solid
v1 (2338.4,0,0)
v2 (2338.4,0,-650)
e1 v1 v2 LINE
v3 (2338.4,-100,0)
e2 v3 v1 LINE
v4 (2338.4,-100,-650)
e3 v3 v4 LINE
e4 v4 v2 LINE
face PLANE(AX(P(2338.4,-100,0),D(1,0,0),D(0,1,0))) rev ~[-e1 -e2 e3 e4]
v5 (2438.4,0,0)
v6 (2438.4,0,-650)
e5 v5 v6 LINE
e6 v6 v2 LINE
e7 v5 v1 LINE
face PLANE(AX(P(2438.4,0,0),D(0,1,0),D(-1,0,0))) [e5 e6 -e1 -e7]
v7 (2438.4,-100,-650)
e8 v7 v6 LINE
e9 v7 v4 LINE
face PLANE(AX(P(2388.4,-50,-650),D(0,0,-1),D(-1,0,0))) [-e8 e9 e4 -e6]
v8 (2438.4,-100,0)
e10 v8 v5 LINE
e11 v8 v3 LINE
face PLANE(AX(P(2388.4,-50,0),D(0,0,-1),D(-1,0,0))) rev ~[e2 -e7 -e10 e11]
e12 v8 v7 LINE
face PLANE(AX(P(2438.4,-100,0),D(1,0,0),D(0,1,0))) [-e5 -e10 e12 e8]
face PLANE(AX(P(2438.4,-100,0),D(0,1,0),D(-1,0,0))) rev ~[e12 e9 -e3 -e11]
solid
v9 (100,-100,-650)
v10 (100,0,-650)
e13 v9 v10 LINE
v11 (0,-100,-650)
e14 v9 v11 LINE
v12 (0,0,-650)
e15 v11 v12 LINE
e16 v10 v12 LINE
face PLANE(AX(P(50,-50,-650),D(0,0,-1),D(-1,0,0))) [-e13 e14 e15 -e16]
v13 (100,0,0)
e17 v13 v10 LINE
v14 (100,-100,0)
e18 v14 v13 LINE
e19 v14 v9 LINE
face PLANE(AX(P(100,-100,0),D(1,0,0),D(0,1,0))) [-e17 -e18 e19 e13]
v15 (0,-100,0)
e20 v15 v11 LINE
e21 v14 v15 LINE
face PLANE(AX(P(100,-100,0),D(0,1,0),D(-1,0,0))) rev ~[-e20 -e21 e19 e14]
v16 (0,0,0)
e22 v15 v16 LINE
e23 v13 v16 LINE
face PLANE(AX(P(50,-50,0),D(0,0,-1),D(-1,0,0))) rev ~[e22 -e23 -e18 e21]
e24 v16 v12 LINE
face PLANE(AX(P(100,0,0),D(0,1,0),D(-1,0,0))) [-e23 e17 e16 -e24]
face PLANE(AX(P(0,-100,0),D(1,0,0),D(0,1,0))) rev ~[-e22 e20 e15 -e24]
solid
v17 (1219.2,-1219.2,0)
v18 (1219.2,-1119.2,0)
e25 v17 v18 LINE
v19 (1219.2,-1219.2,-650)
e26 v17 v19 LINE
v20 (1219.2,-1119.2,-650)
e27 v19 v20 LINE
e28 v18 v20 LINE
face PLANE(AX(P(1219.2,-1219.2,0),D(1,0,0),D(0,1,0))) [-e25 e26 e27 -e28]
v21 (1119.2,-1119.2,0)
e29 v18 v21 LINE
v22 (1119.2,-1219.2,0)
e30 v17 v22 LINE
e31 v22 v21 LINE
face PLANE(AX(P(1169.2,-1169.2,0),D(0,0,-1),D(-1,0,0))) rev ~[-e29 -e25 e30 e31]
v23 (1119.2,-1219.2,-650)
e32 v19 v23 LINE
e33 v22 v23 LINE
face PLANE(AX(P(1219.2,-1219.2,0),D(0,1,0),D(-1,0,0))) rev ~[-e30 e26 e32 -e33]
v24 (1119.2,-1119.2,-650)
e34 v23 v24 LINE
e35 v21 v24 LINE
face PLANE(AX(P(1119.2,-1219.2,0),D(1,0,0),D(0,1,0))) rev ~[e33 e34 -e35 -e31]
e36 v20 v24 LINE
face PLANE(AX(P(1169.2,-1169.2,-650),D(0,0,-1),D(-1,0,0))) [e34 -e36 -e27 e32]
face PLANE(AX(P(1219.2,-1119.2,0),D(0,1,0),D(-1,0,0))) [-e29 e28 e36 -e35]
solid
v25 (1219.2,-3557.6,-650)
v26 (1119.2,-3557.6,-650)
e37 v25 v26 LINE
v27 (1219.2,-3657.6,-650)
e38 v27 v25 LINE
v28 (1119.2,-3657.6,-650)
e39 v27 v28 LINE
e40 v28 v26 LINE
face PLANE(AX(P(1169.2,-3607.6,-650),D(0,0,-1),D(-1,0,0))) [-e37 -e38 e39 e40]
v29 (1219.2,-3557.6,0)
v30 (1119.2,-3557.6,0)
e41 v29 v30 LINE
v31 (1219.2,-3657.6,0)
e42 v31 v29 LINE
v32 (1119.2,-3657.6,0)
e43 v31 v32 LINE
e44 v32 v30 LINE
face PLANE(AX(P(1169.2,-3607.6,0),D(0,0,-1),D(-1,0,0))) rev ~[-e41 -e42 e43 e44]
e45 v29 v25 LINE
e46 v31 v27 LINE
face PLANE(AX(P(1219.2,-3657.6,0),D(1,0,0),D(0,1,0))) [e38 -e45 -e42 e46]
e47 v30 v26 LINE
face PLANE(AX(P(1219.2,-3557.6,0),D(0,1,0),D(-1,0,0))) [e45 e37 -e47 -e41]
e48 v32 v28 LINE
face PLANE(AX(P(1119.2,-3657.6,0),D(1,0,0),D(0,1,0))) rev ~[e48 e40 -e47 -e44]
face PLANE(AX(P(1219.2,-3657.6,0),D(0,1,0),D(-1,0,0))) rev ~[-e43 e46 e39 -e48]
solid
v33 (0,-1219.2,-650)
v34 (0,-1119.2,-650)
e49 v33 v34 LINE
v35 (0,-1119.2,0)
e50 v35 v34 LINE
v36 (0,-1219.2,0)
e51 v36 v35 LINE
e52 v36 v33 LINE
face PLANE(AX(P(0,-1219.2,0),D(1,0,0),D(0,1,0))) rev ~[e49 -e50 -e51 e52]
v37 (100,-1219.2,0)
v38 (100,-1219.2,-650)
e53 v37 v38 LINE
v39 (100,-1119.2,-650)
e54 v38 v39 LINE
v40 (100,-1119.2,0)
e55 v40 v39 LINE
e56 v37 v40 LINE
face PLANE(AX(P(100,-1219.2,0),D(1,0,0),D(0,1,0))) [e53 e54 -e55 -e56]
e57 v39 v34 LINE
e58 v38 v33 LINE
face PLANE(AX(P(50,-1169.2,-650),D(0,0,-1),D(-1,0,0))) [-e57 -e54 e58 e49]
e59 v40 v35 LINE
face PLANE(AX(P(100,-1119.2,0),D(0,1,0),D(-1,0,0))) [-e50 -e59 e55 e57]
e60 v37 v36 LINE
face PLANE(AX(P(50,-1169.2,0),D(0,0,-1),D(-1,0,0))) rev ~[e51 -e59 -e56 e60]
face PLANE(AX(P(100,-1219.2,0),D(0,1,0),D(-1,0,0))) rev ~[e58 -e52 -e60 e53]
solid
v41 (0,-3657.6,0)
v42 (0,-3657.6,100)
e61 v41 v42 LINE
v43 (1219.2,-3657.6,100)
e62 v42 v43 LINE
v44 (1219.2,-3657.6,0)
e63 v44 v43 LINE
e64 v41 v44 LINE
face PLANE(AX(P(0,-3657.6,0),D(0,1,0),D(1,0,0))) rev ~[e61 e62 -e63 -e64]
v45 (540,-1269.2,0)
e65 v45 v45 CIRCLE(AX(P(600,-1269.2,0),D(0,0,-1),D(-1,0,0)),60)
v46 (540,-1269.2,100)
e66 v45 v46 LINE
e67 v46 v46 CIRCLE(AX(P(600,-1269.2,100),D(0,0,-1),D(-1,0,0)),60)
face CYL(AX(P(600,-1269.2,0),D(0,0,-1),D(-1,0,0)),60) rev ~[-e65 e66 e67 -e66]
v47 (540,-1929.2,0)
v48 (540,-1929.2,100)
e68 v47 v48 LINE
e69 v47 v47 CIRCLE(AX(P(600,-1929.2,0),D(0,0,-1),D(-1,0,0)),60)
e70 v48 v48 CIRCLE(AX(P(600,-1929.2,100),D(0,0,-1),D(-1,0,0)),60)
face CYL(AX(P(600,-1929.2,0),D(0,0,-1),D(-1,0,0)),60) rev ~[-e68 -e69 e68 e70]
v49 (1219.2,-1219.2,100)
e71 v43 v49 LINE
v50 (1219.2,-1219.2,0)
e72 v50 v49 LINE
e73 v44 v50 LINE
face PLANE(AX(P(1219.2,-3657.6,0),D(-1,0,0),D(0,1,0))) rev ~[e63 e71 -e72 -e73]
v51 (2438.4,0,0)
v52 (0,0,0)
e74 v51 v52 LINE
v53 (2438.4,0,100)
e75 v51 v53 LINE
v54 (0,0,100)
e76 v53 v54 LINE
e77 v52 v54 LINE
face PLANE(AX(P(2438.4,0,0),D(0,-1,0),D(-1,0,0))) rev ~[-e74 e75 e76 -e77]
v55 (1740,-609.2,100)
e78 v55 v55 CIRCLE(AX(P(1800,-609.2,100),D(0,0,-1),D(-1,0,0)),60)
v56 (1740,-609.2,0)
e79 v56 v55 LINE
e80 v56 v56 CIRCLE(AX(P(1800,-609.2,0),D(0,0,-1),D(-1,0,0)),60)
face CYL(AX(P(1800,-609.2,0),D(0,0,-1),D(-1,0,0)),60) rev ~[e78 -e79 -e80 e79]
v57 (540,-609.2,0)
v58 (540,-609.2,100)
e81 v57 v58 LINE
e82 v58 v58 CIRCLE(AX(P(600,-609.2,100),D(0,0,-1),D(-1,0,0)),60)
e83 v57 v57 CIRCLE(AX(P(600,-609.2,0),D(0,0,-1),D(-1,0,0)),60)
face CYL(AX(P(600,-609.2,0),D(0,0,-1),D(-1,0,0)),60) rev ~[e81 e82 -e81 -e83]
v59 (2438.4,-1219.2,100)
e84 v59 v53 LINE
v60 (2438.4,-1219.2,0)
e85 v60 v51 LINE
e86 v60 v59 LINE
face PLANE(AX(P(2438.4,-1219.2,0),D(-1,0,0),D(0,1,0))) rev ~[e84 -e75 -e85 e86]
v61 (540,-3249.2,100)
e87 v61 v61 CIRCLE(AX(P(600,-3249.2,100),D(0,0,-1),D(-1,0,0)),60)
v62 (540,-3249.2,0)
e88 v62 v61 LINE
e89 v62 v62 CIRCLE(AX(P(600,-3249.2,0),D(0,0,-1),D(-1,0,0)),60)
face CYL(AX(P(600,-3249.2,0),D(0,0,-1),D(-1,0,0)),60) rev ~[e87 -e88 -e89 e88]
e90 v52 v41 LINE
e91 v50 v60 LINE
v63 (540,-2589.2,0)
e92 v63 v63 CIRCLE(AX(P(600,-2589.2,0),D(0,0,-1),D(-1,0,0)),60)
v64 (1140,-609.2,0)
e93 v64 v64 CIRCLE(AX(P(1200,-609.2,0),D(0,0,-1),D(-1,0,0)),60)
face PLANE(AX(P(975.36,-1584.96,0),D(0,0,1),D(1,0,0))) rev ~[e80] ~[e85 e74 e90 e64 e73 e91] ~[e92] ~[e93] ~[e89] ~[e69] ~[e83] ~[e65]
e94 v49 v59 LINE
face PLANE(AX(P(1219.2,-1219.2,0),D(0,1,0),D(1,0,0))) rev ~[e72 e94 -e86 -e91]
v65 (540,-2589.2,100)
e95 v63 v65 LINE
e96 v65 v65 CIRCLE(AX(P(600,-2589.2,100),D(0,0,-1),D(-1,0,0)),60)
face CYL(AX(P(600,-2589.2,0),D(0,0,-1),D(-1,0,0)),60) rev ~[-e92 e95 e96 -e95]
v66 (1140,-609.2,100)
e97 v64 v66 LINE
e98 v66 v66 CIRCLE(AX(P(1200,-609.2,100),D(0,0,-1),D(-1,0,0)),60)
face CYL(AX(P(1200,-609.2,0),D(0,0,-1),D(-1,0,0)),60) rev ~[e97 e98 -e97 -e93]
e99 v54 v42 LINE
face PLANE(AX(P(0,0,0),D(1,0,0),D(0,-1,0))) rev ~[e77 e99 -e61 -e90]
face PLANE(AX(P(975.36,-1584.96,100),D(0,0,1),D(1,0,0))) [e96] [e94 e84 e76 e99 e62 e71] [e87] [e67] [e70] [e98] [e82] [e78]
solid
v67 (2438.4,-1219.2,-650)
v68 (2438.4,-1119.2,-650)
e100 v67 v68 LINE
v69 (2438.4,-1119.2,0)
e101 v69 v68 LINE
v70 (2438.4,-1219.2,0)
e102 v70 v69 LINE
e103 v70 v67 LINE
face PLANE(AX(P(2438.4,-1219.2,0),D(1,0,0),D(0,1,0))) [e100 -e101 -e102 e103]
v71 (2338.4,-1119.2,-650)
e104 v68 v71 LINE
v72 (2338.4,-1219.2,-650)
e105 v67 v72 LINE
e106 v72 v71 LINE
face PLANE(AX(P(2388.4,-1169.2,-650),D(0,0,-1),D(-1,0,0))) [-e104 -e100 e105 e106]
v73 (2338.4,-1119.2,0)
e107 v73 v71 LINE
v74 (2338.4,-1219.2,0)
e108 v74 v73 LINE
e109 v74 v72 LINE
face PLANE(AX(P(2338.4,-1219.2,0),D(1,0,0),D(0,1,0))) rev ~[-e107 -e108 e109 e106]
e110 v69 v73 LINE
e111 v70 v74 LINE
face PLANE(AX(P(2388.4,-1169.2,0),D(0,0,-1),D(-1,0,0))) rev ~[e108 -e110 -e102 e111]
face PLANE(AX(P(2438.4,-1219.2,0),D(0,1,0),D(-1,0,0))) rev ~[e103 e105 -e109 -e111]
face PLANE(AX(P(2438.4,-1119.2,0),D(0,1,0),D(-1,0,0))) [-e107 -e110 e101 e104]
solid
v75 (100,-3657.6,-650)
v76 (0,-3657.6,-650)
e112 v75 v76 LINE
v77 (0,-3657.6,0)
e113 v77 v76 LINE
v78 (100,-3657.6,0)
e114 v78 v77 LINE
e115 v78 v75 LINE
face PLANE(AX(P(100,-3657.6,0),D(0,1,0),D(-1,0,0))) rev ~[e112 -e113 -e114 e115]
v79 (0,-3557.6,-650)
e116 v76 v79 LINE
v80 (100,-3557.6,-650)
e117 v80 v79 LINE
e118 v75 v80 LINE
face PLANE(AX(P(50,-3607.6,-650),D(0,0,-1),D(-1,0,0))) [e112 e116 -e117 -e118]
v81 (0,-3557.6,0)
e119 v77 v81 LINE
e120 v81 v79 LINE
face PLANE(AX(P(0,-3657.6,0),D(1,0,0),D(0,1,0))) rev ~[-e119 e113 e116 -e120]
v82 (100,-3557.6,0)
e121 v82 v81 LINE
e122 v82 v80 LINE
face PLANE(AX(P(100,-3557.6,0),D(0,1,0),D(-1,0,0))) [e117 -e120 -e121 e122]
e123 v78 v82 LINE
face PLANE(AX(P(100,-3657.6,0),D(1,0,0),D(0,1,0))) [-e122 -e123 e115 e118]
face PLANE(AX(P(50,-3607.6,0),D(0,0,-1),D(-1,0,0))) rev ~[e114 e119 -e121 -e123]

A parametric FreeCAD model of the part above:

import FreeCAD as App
import Part
import Sketcher
Q = App.Units.Quantity


def add_polygon(sketch, points):
    """Adds a closed chain of lines whose ends are joined by coincident constraints."""
    first, n = sketch.GeometryCount, len(points)
    for a, b in zip(points, points[1:] + points[:1]):
        sketch.addGeometry(Part.LineSegment(App.Vector(*a, 0), App.Vector(*b, 0)), False)
    for i in range(n):
        sketch.addConstraint(Sketcher.Constraint("Coincident", first + i, 2, first + (i + 1) % n, 1))

doc = App.newDocument("Part")
body = doc.addObject("PartDesign::Body", "Body")

sketch1 = doc.addObject("Sketcher::SketchObject", "Sketch")
body.addObject(sketch1)
sketch1.AttachmentSupport = (doc.XY_Plane, [""])
sketch1.MapMode = "FlatFace"
add_polygon(sketch1, [(2438, -1219), (2438, 0), (0, 0), (0, -3658), (1219, -3658), (1219, -1219)])
sketch1.addConstraint(Sketcher.Constraint("Vertical", 0))
sketch1.addConstraint(Sketcher.Constraint("Horizontal", 1))
sketch1.addConstraint(Sketcher.Constraint("Vertical", 2))
sketch1.addConstraint(Sketcher.Constraint("Horizontal", 3))
sketch1.addConstraint(Sketcher.Constraint("Vertical", 4))
sketch1.addConstraint(Sketcher.Constraint("Horizontal", 5))
sketch1.addConstraint(Sketcher.Constraint("Coincident", 1, 2, -1, 1))
sketch1.addConstraint(Sketcher.Constraint("Equal", 3, 5))
sketch1.addConstraint(Sketcher.Constraint("Equal", 5, 0))
sketch1.addConstraint(Sketcher.Constraint("Equal", 1, 4))
sketch1.addConstraint(Sketcher.Constraint("DistanceX", 1, 2, 1, 1, Q("2438.4 mm")))
pad1 = doc.addObject("PartDesign::Pad", "Pad")
body.addObject(pad1)
pad1.Profile = sketch1
pad1.Length = 100

sketch2 = doc.addObject("Sketcher::SketchObject", "Sketch001")
body.addObject(sketch2)
sketch2.AttachmentSupport = (doc.XY_Plane, [""])
sketch2.MapMode = "FlatFace"
sketch2.addGeometry(Part.Circle(App.Vector(600, -3249, 0), App.Vector(0, 0, 1), 60), False)
sketch2.addGeometry(Part.Circle(App.Vector(600, -2589, 0), App.Vector(0, 0, 1), 60), False)
sketch2.addGeometry(Part.Circle(App.Vector(600, -1929, 0), App.Vector(0, 0, 1), 60), False)
sketch2.addGeometry(Part.Circle(App.Vector(600, -1269, 0), App.Vector(0, 0, 1), 60), False)
sketch2.addGeometry(Part.Circle(App.Vector(600, -609, 0), App.Vector(0, 0, 1), 60), False)
sketch2.addGeometry(Part.Circle(App.Vector(1200, -609, 0), App.Vector(0, 0, 1), 60), False)
sketch2.addGeometry(Part.Circle(App.Vector(1800, -609, 0), App.Vector(0, 0, 1), 60), False)
sketch2.addConstraint(Sketcher.Constraint("Equal", 0, 1))
sketch2.addConstraint(Sketcher.Constraint("Equal", 1, 2))
sketch2.addConstraint(Sketcher.Constraint("Equal", 2, 3))
sketch2.addConstraint(Sketcher.Constraint("Equal", 3, 4))
sketch2.addConstraint(Sketcher.Constraint("Equal", 4, 5))
sketch2.addConstraint(Sketcher.Constraint("Equal", 5, 6))
sketch2.addConstraint(Sketcher.Constraint("Horizontal", 4, 3, 5, 3))
sketch2.addConstraint(Sketcher.Constraint("Horizontal", 5, 3, 6, 3))
sketch2.addConstraint(Sketcher.Constraint("Vertical", 0, 3, 1, 3))
sketch2.addConstraint(Sketcher.Constraint("Vertical", 1, 3, 2, 3))
sketch2.addConstraint(Sketcher.Constraint("Vertical", 2, 3, 3, 3))
sketch2.addConstraint(Sketcher.Constraint("Vertical", 3, 3, 4, 3))
sketch2.addConstraint(Sketcher.Constraint("Diameter", 0, Q("120 mm")))
sketch2.addConstraint(Sketcher.Constraint("DistanceX", -1, 1, 0, 3, Q("600 mm")))
sketch2.addConstraint(Sketcher.Constraint("DistanceX", -1, 1, 5, 3, Q("1200 mm")))
sketch2.addConstraint(Sketcher.Constraint("DistanceX", -1, 1, 6, 3, Q("1800 mm")))
sketch2.addConstraint(Sketcher.Constraint("DistanceY", 0, 3, 1, 3, Q("660 mm")))
sketch2.addConstraint(Sketcher.Constraint("DistanceY", 1, 3, 2, 3, Q("660 mm")))
sketch2.addConstraint(Sketcher.Constraint("DistanceY", 2, 3, 3, 3, Q("660 mm")))
sketch2.addConstraint(Sketcher.Constraint("DistanceY", 3, 3, 4, 3, Q("660 mm")))
sketch2.addConstraint(Sketcher.Constraint("DistanceY", 0, 3, -1, 1, Q("3249.2 mm")))
pocket1 = doc.addObject("PartDesign::Pocket", "Pocket")
body.addObject(pocket1)
pocket1.Profile = sketch2
pocket1.Type = "ThroughAll"
pocket1.Reversed = True
body2 = doc.addObject("PartDesign::Body", "Body001")

sketch3 = doc.addObject("Sketcher::SketchObject", "Sketch002")
body2.addObject(sketch3)
sketch3.AttachmentSupport = (doc.getObject("XY_Plane001"), [""])
sketch3.MapMode = "FlatFace"
add_polygon(sketch3, [(2438, 0), (2438, -100), (2338, -100), (2338, 0)])
sketch3.addConstraint(Sketcher.Constraint("Vertical", 0))
sketch3.addConstraint(Sketcher.Constraint("Horizontal", 1))
sketch3.addConstraint(Sketcher.Constraint("Vertical", 2))
sketch3.addConstraint(Sketcher.Constraint("Horizontal", 3))
sketch3.addConstraint(Sketcher.Constraint("PointOnObject", 2, 2, -1))
sketch3.addConstraint(Sketcher.Constraint("Equal", 3, 0))
sketch3.addConstraint(Sketcher.Constraint("DistanceX", 1, 2, 1, 1, Q("100 mm")))
sketch3.addConstraint(Sketcher.Constraint("DistanceX", -1, 1, 0, 2, Q("2438.4 mm")))
pad2 = doc.addObject("PartDesign::Pad", "Pad001")
body2.addObject(pad2)
pad2.Profile = sketch3
pad2.Length = 650
pad2.Reversed = True
body3 = doc.addObject("PartDesign::Body", "Body002")

sketch4 = doc.addObject("Sketcher::SketchObject", "Sketch003")
body3.addObject(sketch4)
sketch4.AttachmentSupport = (doc.getObject("XY_Plane002"), [""])
sketch4.MapMode = "FlatFace"
add_polygon(sketch4, [(100, -3558), (100, -3658), (0, -3658), (0, -3558)])
sketch4.addConstraint(Sketcher.Constraint("Vertical", 0))
sketch4.addConstraint(Sketcher.Constraint("Horizontal", 1))
sketch4.addConstraint(Sketcher.Constraint("Vertical", 2))
sketch4.addConstraint(Sketcher.Constraint("Horizontal", 3))
sketch4.addConstraint(Sketcher.Constraint("PointOnObject", 1, 2, -2))
sketch4.addConstraint(Sketcher.Constraint("Equal", 3, 0))
sketch4.addConstraint(Sketcher.Constraint("DistanceX", 1, 2, 1, 1, Q("100 mm")))
sketch4.addConstraint(Sketcher.Constraint("DistanceY", 0, 2, -1, 1, Q("3657.6 mm")))
pad3 = doc.addObject("PartDesign::Pad", "Pad002")
body3.addObject(pad3)
pad3.Profile = sketch4
pad3.Length = 650
pad3.Reversed = True
body4 = doc.addObject("PartDesign::Body", "Body003")

sketch5 = doc.addObject("Sketcher::SketchObject", "Sketch004")
body4.addObject(sketch5)
sketch5.AttachmentSupport = (doc.getObject("XY_Plane003"), [""])
sketch5.MapMode = "FlatFace"
add_polygon(sketch5, [(100, 0), (100, -100), (0, -100), (0, 0)])
sketch5.addConstraint(Sketcher.Constraint("Vertical", 0))
sketch5.addConstraint(Sketcher.Constraint("Horizontal", 1))
sketch5.addConstraint(Sketcher.Constraint("Vertical", 2))
sketch5.addConstraint(Sketcher.Constraint("Horizontal", 3))
sketch5.addConstraint(Sketcher.Constraint("Coincident", 2, 2, -1, 1))
sketch5.addConstraint(Sketcher.Constraint("Equal", 3, 0))
sketch5.addConstraint(Sketcher.Constraint("DistanceX", 1, 2, 1, 1, Q("100 mm")))
pad4 = doc.addObject("PartDesign::Pad", "Pad003")
body4.addObject(pad4)
pad4.Profile = sketch5
pad4.Length = 650
pad4.Reversed = True
body5 = doc.addObject("PartDesign::Body", "Body004")

sketch6 = doc.addObject("Sketcher::SketchObject", "Sketch005")
body5.addObject(sketch6)
sketch6.AttachmentSupport = (doc.getObject("XY_Plane004"), [""])
sketch6.MapMode = "FlatFace"
add_polygon(sketch6, [(1219, -3558), (1219, -3658), (1119, -3658), (1119, -3558)])
sketch6.addConstraint(Sketcher.Constraint("Vertical", 0))
sketch6.addConstraint(Sketcher.Constraint("Horizontal", 1))
sketch6.addConstraint(Sketcher.Constraint("Vertical", 2))
sketch6.addConstraint(Sketcher.Constraint("Horizontal", 3))
sketch6.addConstraint(Sketcher.Constraint("Equal", 3, 0))
sketch6.addConstraint(Sketcher.Constraint("DistanceX", 1, 2, 1, 1, Q("100 mm")))
sketch6.addConstraint(Sketcher.Constraint("DistanceX", -1, 1, 0, 2, Q("1219.2 mm")))
sketch6.addConstraint(Sketcher.Constraint("DistanceY", 0, 2, -1, 1, Q("3657.6 mm")))
pad5 = doc.addObject("PartDesign::Pad", "Pad004")
body5.addObject(pad5)
pad5.Profile = sketch6
pad5.Length = 650
pad5.Reversed = True
body6 = doc.addObject("PartDesign::Body", "Body005")

sketch7 = doc.addObject("Sketcher::SketchObject", "Sketch006")
body6.addObject(sketch7)
sketch7.AttachmentSupport = (doc.getObject("XY_Plane005"), [""])
sketch7.MapMode = "FlatFace"
add_polygon(sketch7, [(1219, -1119), (1219, -1219), (1119, -1219), (1119, -1119)])
sketch7.addConstraint(Sketcher.Constraint("Vertical", 0))
sketch7.addConstraint(Sketcher.Constraint("Horizontal", 1))
sketch7.addConstraint(Sketcher.Constraint("Vertical", 2))
sketch7.addConstraint(Sketcher.Constraint("Horizontal", 3))
sketch7.addConstraint(Sketcher.Constraint("Equal", 3, 0))
sketch7.addConstraint(Sketcher.Constraint("DistanceX", 1, 2, 1, 1, Q("100 mm")))
sketch7.addConstraint(Sketcher.Constraint("DistanceX", -1, 1, 0, 2, Q("1219.2 mm")))
sketch7.addConstraint(Sketcher.Constraint("DistanceY", 0, 2, -1, 1, Q("1219.2 mm")))
pad6 = doc.addObject("PartDesign::Pad", "Pad005")
body6.addObject(pad6)
pad6.Profile = sketch7
pad6.Length = 650
pad6.Reversed = True
body7 = doc.addObject("PartDesign::Body", "Body006")

sketch8 = doc.addObject("Sketcher::SketchObject", "Sketch007")
body7.addObject(sketch8)
sketch8.AttachmentSupport = (doc.getObject("XY_Plane006"), [""])
sketch8.MapMode = "FlatFace"
add_polygon(sketch8, [(2438, -1119), (2438, -1219), (2338, -1219), (2338, -1119)])
sketch8.addConstraint(Sketcher.Constraint("Vertical", 0))
sketch8.addConstraint(Sketcher.Constraint("Horizontal", 1))
sketch8.addConstraint(Sketcher.Constraint("Vertical", 2))
sketch8.addConstraint(Sketcher.Constraint("Horizontal", 3))
sketch8.addConstraint(Sketcher.Constraint("Equal", 3, 0))
sketch8.addConstraint(Sketcher.Constraint("DistanceX", 1, 2, 1, 1, Q("100 mm")))
sketch8.addConstraint(Sketcher.Constraint("DistanceX", -1, 1, 0, 2, Q("2438.4 mm")))
sketch8.addConstraint(Sketcher.Constraint("DistanceY", 0, 2, -1, 1, Q("1219.2 mm")))
pad7 = doc.addObject("PartDesign::Pad", "Pad006")
body7.addObject(pad7)
pad7.Profile = sketch8
pad7.Length = 650
pad7.Reversed = True
body8 = doc.addObject("PartDesign::Body", "Body007")

sketch9 = doc.addObject("Sketcher::SketchObject", "Sketch008")
body8.addObject(sketch9)
sketch9.AttachmentSupport = (doc.getObject("XY_Plane007"), [""])
sketch9.MapMode = "FlatFace"
add_polygon(sketch9, [(100, -1119), (100, -1219), (0, -1219), (0, -1119)])
sketch9.addConstraint(Sketcher.Constraint("Vertical", 0))
sketch9.addConstraint(Sketcher.Constraint("Horizontal", 1))
sketch9.addConstraint(Sketcher.Constraint("Vertical", 2))
sketch9.addConstraint(Sketcher.Constraint("Horizontal", 3))
sketch9.addConstraint(Sketcher.Constraint("PointOnObject", 1, 2, -2))
sketch9.addConstraint(Sketcher.Constraint("Equal", 3, 0))
sketch9.addConstraint(Sketcher.Constraint("DistanceX", 1, 2, 1, 1, Q("100 mm")))
sketch9.addConstraint(Sketcher.Constraint("DistanceY", 0, 2, -1, 1, Q("1219.2 mm")))
pad8 = doc.addObject("PartDesign::Pad", "Pad007")
body8.addObject(pad8)
pad8.Profile = sketch9
pad8.Length = 650
pad8.Reversed = True

doc.recompute()
